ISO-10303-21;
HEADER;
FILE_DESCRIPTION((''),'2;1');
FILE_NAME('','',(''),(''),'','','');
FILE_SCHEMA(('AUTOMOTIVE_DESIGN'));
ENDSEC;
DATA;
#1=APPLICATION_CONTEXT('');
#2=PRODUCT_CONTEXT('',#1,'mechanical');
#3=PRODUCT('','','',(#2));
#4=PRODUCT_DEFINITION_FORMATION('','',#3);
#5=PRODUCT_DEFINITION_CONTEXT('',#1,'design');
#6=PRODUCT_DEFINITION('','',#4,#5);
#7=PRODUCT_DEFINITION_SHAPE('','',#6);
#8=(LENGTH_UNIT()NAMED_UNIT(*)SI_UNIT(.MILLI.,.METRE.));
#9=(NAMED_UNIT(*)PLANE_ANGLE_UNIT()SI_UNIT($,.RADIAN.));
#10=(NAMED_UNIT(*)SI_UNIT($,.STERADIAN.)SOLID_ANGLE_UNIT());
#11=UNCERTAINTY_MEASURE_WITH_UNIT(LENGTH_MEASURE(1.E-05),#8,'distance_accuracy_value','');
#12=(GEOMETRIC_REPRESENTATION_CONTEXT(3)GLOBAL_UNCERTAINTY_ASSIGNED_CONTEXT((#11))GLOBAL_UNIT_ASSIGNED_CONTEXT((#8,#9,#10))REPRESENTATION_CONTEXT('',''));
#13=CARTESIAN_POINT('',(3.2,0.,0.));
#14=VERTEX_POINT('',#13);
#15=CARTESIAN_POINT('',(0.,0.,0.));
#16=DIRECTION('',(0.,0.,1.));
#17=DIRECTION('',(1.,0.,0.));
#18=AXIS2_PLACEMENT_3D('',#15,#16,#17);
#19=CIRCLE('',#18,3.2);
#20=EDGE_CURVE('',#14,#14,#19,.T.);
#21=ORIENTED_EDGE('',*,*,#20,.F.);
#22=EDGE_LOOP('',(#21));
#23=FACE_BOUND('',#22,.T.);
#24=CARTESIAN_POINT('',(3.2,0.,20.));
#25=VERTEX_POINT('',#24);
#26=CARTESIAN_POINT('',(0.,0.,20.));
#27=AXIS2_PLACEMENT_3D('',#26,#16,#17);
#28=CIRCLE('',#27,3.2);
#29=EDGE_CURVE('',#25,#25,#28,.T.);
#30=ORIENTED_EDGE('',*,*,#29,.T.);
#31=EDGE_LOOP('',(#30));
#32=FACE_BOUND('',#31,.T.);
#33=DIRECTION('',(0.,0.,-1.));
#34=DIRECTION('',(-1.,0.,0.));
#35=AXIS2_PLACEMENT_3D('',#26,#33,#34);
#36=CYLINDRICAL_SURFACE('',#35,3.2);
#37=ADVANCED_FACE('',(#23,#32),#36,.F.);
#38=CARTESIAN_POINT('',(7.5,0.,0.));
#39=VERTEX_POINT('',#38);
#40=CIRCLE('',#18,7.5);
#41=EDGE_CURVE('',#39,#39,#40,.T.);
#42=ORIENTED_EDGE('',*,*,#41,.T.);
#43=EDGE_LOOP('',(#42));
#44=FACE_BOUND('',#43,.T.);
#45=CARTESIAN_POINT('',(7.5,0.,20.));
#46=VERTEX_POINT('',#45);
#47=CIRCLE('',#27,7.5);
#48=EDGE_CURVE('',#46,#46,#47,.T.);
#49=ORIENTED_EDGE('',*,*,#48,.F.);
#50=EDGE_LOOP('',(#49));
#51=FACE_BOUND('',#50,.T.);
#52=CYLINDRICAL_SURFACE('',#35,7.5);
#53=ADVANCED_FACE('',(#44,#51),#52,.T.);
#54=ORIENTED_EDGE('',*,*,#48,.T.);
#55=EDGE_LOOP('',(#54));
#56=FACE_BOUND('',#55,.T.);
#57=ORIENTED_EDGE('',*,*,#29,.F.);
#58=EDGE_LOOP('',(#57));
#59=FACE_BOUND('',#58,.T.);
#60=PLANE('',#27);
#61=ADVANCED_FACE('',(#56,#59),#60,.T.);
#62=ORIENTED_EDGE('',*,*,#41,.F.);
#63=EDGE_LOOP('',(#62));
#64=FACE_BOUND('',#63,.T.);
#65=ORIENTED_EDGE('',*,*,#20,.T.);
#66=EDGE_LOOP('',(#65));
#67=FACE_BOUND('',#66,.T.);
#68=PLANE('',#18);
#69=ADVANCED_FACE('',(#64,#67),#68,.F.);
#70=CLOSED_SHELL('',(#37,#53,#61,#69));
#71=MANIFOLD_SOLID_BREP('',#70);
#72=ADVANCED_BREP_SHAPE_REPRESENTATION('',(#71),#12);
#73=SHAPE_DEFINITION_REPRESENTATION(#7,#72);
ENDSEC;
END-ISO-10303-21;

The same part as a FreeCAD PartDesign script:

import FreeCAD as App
import Part
import Sketcher

V = App.Vector
Q = App.Units.Quantity

doc = App.newDocument("Part")
body = doc.addObject("PartDesign::Body", "Body")

# Sketch on XY plane
sketch1 = body.newObject("Sketcher::SketchObject", "Sketch")
sketch1.AttachmentSupport = (doc.getObject("XY_Plane"), [""])
sketch1.MapMode = "FlatFace"
sketch1.addGeometry(Part.Circle(V(0, 0, 0), V(0, 0, 1), 7.5), False)
sketch1.addGeometry(Part.Circle(V(0, 0, 0), V(0, 0, 1), 3.2), False)
sketch1.addConstraint(Sketcher.Constraint("Coincident", 0, 3, -1, 1))
sketch1.addConstraint(Sketcher.Constraint("Coincident", 1, 3, -1, 1))
sketch1.addConstraint(Sketcher.Constraint("Diameter", 0, Q("15 mm")))
sketch1.addConstraint(Sketcher.Constraint("Diameter", 1, Q("6.4 mm")))
pad1 = body.newObject("PartDesign::Pad", "Pad")
pad1.Profile = sketch1
pad1.Length = 20

doc.recompute()
